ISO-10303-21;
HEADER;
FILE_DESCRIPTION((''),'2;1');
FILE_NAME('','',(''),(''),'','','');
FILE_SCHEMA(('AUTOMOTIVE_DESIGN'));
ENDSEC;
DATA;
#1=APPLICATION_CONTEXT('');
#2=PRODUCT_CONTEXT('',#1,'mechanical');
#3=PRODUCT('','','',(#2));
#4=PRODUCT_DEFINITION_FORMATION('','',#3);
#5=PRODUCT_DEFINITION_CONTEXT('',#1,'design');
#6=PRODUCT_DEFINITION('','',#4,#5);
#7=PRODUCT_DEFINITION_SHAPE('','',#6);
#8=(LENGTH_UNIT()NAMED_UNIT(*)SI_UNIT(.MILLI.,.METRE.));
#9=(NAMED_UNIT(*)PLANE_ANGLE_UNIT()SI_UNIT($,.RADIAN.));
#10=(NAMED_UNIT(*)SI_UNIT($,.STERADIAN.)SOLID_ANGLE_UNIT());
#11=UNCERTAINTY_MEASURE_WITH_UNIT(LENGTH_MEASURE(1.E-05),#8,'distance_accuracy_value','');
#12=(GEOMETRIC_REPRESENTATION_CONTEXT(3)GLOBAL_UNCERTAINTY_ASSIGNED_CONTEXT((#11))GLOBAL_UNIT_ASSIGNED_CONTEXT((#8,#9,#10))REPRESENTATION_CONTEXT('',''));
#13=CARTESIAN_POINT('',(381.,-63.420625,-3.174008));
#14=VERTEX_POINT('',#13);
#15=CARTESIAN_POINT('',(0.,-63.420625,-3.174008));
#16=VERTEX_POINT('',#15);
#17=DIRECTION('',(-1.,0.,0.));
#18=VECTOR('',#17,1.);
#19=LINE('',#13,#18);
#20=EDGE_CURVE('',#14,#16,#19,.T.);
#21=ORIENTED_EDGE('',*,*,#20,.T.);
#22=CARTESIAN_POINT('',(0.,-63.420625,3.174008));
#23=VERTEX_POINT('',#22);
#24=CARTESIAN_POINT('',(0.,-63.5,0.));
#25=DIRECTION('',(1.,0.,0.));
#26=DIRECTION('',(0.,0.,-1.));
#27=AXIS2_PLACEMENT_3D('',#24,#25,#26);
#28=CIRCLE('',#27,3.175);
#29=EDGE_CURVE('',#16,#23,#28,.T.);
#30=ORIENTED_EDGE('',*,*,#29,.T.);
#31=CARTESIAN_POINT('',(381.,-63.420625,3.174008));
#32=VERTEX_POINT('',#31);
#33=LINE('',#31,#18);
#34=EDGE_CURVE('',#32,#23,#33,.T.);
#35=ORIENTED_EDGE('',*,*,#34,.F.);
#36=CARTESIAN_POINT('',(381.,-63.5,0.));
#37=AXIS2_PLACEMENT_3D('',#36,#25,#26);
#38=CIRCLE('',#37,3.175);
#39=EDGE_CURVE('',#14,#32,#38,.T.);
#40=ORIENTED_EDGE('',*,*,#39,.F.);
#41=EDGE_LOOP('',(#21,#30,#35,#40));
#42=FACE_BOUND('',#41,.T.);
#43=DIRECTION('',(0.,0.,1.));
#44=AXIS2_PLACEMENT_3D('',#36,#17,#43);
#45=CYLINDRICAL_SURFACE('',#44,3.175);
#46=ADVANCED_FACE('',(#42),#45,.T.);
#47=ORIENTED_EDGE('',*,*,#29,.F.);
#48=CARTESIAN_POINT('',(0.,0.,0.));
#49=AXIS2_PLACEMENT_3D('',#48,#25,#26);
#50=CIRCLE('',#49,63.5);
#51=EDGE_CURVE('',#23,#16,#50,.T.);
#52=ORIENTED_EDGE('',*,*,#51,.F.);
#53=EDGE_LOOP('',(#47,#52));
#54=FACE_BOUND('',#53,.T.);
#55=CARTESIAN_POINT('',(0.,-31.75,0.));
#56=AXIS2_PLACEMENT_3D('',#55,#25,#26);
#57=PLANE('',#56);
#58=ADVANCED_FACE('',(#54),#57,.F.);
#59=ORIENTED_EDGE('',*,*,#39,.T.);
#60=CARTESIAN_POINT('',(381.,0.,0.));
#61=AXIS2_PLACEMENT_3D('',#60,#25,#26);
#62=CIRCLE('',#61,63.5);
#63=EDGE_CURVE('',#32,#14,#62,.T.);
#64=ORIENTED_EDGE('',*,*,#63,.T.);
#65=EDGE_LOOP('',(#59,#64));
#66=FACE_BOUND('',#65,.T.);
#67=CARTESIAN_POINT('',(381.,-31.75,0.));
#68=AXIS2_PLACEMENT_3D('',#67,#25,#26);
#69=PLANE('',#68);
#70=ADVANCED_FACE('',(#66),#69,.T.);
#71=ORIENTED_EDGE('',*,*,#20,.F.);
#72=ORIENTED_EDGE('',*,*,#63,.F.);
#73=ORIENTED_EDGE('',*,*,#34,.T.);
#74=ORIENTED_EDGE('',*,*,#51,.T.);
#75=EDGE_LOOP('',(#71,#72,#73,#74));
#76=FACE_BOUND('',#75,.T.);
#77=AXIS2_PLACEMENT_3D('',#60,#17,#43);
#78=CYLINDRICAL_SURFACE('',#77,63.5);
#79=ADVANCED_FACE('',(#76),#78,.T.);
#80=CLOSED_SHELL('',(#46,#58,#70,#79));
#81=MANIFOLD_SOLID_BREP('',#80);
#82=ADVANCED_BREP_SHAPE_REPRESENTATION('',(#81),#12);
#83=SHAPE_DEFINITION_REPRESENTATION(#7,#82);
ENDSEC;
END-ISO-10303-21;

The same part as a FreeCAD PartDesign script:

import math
import FreeCAD as App
import Part
import Sketcher

V = App.Vector
Q = App.Units.Quantity

doc = App.newDocument("Part")
body = doc.addObject("PartDesign::Body", "Body")

# Sketch on YZ plane
sketch1 = doc.addObject("Sketcher::SketchObject", "Sketch")
body.addObject(sketch1)
sketch1.AttachmentSupport = (doc.YZ_Plane, [""])
sketch1.MapMode = "FlatFace"
sketch1.addGeometry(Part.ArcOfCircle(Part.Circle(V(0, 0, 0), V(0, 0, 1), 63.5), math.radians(177.13), math.radians(182.87)), False)
sketch1.addGeometry(Part.ArcOfCircle(Part.Circle(V(-63.5, 0, 0), V(0, 0, 1), 3.2), math.radians(-89), math.radians(89)), False)
sketch1.addConstraint(Sketcher.Constraint("Coincident", 0, 1, 1, 2))
sketch1.addConstraint(Sketcher.Constraint("Coincident", 1, 1, 0, 2))
sketch1.addConstraint(Sketcher.Constraint("Coincident", 0, 3, -1, 1))
sketch1.addConstraint(Sketcher.Constraint("PointOnObject", 1, 3, -1))
sketch1.addConstraint(Sketcher.Constraint("Radius", 0, Q("2.5 in")))
sketch1.addConstraint(Sketcher.Constraint("Radius", 1, Q("0.125 in")))
sketch1.addConstraint(Sketcher.Constraint("DistanceX", 1, 3, -1, 1, Q("2.5 in")))
pad1 = doc.addObject("PartDesign::Pad", "Pad")
body.addObject(pad1)
pad1.Profile = sketch1
pad1.Length = Q("15 in")

doc.recompute()
